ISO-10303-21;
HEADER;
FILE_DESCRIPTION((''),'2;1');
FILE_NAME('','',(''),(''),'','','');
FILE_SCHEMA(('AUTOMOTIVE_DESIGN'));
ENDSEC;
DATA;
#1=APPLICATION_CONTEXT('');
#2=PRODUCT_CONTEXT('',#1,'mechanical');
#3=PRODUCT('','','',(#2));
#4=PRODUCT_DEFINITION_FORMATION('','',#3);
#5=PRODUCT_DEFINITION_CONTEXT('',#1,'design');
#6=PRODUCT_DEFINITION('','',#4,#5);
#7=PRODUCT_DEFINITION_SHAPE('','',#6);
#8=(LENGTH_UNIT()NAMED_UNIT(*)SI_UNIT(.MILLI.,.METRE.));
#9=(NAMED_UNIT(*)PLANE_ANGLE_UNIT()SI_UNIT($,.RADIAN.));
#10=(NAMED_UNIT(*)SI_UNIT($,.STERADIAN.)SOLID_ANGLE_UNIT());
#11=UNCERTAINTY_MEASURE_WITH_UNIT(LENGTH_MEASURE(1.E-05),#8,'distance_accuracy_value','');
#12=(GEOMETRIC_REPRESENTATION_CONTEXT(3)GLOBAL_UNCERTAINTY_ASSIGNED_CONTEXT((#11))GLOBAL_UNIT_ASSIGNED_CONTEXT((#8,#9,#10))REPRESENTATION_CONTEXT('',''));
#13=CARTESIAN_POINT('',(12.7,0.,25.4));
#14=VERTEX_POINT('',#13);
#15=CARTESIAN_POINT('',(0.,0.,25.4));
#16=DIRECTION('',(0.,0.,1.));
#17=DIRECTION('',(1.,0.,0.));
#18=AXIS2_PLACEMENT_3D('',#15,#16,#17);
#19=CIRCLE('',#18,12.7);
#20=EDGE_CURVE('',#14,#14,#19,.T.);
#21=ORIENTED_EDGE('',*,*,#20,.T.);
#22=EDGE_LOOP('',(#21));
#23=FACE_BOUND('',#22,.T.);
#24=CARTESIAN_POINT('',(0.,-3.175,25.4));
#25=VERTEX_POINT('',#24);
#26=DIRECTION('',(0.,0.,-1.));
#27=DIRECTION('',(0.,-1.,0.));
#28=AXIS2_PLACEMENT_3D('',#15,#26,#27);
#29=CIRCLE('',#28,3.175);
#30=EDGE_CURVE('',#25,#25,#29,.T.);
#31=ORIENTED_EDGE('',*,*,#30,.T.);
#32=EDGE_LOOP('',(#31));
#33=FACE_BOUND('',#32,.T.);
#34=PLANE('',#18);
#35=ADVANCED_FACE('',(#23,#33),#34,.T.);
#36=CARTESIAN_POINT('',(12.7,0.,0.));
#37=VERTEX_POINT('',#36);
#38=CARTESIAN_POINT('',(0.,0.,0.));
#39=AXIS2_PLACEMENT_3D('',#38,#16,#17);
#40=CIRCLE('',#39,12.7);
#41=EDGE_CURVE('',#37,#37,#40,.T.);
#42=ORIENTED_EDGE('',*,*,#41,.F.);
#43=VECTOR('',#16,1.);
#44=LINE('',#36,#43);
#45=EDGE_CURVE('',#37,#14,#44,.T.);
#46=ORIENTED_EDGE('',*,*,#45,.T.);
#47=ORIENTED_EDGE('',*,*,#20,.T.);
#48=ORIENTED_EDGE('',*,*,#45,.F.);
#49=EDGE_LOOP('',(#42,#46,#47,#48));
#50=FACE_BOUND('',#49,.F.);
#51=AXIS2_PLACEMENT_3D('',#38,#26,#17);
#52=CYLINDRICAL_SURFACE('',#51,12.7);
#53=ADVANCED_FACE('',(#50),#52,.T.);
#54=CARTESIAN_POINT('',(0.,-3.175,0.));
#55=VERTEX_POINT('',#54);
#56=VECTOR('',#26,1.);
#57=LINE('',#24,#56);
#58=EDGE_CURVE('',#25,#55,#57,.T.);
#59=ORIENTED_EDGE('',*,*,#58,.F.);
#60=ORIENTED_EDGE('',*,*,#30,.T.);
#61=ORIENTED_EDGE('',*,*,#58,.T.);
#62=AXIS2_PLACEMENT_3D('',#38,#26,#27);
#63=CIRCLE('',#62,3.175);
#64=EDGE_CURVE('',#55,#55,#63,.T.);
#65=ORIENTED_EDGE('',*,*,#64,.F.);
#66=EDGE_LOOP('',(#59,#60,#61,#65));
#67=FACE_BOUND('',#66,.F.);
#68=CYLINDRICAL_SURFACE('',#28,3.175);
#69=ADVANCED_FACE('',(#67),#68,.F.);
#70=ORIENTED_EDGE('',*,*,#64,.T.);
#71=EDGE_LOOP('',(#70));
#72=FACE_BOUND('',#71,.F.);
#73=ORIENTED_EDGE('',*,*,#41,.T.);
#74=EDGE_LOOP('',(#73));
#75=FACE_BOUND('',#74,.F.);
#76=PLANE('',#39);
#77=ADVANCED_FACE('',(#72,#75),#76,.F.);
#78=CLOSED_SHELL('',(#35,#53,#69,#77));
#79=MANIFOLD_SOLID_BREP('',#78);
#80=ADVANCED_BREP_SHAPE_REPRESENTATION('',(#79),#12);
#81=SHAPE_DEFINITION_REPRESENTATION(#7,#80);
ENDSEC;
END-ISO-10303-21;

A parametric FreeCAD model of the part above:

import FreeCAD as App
import Part
import Sketcher
from FreeCAD import Vector
Q = App.Units.Quantity

doc = App.newDocument("Part")
params = doc.addObject("Spreadsheet::Sheet", "Params")
for row, (alias, value) in enumerate([
    ("sketch1_diameter", "1 in"),
    ("pad1_length", "1 in"),
    ("sketch2_diameter", "0.25 in"),
    ("hole_diameter", "0.25 in"),
], start=1):
    params.set(f"A{row}", alias)
    params.set(f"B{row}", "=" + value)
    params.setAlias(f"B{row}", alias)

body = doc.addObject("PartDesign::Body", "Body")

# Sketch on XY plane
sketch1 = doc.addObject("Sketcher::SketchObject", "Sketch")
body.addObject(sketch1)
sketch1.AttachmentSupport = (doc.XY_Plane, [""])
sketch1.MapMode = "FlatFace"
sketch1.addGeometry(Part.Circle(Vector(0, 0, 0), Vector(0, 0, 1), 13), False)
sketch1.addConstraint([
    Sketcher.Constraint("Coincident", 0, 3, -1, 1),
    Sketcher.Constraint("Diameter", 0, Q("1 in")),
])
sketch1.setExpression("Constraints[1]", "Params.sketch1_diameter")
pad1 = doc.addObject("PartDesign::Pad", "Pad")
body.addObject(pad1)
pad1.Profile = sketch1
pad1.setExpression("Length", "Params.pad1_length")

# Sketch on XY plane
sketch2 = doc.addObject("Sketcher::SketchObject", "Sketch001")
body.addObject(sketch2)
sketch2.AttachmentSupport = (doc.XY_Plane, [""])
sketch2.MapMode = "FlatFace"
sketch2.AttachmentOffset = App.Placement(Vector(0, 0, 1 * 25.4), App.Rotation())
sketch2.addGeometry(Part.Circle(Vector(0, 0, 0), Vector(0, 0, 1), 3.2), False)
sketch2.addConstraint([
    Sketcher.Constraint("Coincident", 0, 3, -1, 1),
    Sketcher.Constraint("Diameter", 0, Q("0.25 in")),
])
sketch2.setExpression("Constraints[1]", "Params.sketch2_diameter")
doc.recompute()
hole = doc.addObject("PartDesign::Hole", "Hole")
body.addObject(hole)
hole.Profile = sketch2
hole.ThreadType = "None"
hole.setExpression("Diameter", "Params.hole_diameter")
hole.DepthType = "ThroughAll"

doc.recompute()
